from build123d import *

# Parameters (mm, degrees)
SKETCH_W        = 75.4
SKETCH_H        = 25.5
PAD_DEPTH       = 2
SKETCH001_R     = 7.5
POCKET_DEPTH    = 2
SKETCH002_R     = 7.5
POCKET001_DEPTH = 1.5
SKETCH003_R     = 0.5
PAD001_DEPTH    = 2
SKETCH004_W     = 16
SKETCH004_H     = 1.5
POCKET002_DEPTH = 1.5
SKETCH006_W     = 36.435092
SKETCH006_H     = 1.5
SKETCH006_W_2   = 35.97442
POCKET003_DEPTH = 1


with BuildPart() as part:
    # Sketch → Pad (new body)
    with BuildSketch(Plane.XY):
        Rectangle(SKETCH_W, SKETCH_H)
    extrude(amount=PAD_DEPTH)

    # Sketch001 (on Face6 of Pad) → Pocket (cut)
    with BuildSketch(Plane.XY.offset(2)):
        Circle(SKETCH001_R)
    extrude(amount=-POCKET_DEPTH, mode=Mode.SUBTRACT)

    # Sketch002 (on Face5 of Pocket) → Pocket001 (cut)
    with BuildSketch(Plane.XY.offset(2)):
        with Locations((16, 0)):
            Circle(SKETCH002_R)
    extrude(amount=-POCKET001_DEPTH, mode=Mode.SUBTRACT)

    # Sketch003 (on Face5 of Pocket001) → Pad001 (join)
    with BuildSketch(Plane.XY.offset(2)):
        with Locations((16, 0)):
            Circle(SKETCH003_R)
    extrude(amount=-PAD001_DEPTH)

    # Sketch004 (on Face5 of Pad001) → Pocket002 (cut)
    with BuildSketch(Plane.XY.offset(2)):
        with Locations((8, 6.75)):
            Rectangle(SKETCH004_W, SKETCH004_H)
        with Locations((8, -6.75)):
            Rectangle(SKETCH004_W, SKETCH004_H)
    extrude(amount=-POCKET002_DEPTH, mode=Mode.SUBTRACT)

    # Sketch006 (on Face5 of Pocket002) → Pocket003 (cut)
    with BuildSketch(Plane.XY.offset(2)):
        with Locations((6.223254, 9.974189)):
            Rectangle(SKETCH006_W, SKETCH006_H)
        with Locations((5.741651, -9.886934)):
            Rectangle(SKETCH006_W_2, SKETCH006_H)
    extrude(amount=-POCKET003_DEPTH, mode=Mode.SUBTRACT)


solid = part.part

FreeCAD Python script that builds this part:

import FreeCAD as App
import Part
import Sketcher

doc = App.newDocument("Part")
body = doc.addObject("PartDesign::Body", "Body")

# Sketch on XY plane
sketch1 = doc.addObject("Sketcher::SketchObject", "Sketch")
body.addObject(sketch1)
sketch1.AttachmentSupport = (doc.XY_Plane, [""])
sketch1.MapMode = "FlatFace"
sketch1.addGeometry([
    Part.LineSegment(App.Vector(-37.7, 12.75, 0), App.Vector(-37.7, -12.75, 0)),
    Part.LineSegment(App.Vector(-37.7, -12.75, 0), App.Vector(37.7, -12.75, 0)),
    Part.LineSegment(App.Vector(37.7, -12.75, 0), App.Vector(37.7, 12.75, 0)),
    Part.LineSegment(App.Vector(37.7, 12.75, 0), App.Vector(-37.7, 12.75, 0)),
], False)
sketch1.addConstraint([
    Sketcher.Constraint("Coincident", 0, 2, 1, 1),
    Sketcher.Constraint("Coincident", 1, 2, 2, 1),
    Sketcher.Constraint("Coincident", 2, 2, 3, 1),
    Sketcher.Constraint("Coincident", 3, 2, 0, 1),
    Sketcher.Constraint("Vertical", 0),
    Sketcher.Constraint("Horizontal", 1),
    Sketcher.Constraint("Vertical", 2),
    Sketcher.Constraint("Horizontal", 3),
    Sketcher.Constraint("Symmetric", 0, 2, 2, 2, -1, 1),
    Sketcher.Constraint("DistanceX", 1, 1, 1, 2, 75.4),
    Sketcher.Constraint("DistanceY", 0, 2, 0, 1, 25.5),
])
pad1 = doc.addObject("PartDesign::Pad", "Pad")
body.addObject(pad1)
pad1.Profile = sketch1
pad1.Length = 2

# Sketch on XY plane
sketch2 = doc.addObject("Sketcher::SketchObject", "Sketch001")
body.addObject(sketch2)
sketch2.AttachmentSupport = (doc.XY_Plane, [""])
sketch2.MapMode = "FlatFace"
sketch2.AttachmentOffset = App.Placement(App.Vector(0, 0, 2), App.Rotation())
sketch2.addGeometry(Part.Circle(App.Vector(0, 0, 0), App.Vector(0, 0, 1), 7.5), False)
sketch2.addConstraint([
    Sketcher.Constraint("Coincident", 0, 3, -1, 1),
    Sketcher.Constraint("Diameter", 0, 15.0),
])
pocket1 = doc.addObject("PartDesign::Pocket", "Pocket")
body.addObject(pocket1)
pocket1.Profile = sketch2
pocket1.Length = 2

# Sketch on XY plane
sketch3 = doc.addObject("Sketcher::SketchObject", "Sketch002")
body.addObject(sketch3)
sketch3.AttachmentSupport = (doc.XY_Plane, [""])
sketch3.MapMode = "FlatFace"
sketch3.AttachmentOffset = App.Placement(App.Vector(0, 0, 2), App.Rotation())
sketch3.addGeometry(Part.Circle(App.Vector(16, 0, 0), App.Vector(0, 0, 1), 7.5), False)
sketch3.addConstraint([
    Sketcher.Constraint("PointOnObject", 0, 3, -1),
    Sketcher.Constraint("Diameter", 0, 15.0),
    Sketcher.Constraint("DistanceX", -1, 1, 0, 3, 16.0),
])
pocket2 = doc.addObject("PartDesign::Pocket", "Pocket001")
body.addObject(pocket2)
pocket2.Profile = sketch3
pocket2.Length = 1.5

# Sketch on XY plane
sketch4 = doc.addObject("Sketcher::SketchObject", "Sketch003")
body.addObject(sketch4)
sketch4.AttachmentSupport = (doc.XY_Plane, [""])
sketch4.MapMode = "FlatFace"
sketch4.AttachmentOffset = App.Placement(App.Vector(0, 0, 2), App.Rotation())
sketch4.addGeometry(Part.Circle(App.Vector(16, 0, 0), App.Vector(0, 0, 1), 0.5), False)
sketch4.addConstraint([
    Sketcher.Constraint("PointOnObject", 0, 3, -1),
    Sketcher.Constraint("Diameter", 0, 1.0),
    Sketcher.Constraint("DistanceX", -1, 1, 0, 3, 16.0),
])
pad2 = doc.addObject("PartDesign::Pad", "Pad001")
body.addObject(pad2)
pad2.Profile = sketch4
pad2.Length = 2
pad2.Reversed = True

# Sketch on XY plane
sketch5 = doc.addObject("Sketcher::SketchObject", "Sketch004")
body.addObject(sketch5)
sketch5.AttachmentSupport = (doc.XY_Plane, [""])
sketch5.MapMode = "FlatFace"
sketch5.AttachmentOffset = App.Placement(App.Vector(0, 0, 2), App.Rotation())
sketch5.addGeometry([
    Part.LineSegment(App.Vector(0, 7.5, 0), App.Vector(0, 6, 0)),  # 0
    Part.LineSegment(App.Vector(0, 6, 0), App.Vector(16, 6, 0)),  # 1
    Part.LineSegment(App.Vector(16, 6, 0), App.Vector(16, 7.5, 0)),  # 2
    Part.LineSegment(App.Vector(16, 7.5, 0), App.Vector(0, 7.5, 0)),  # 3
    Part.LineSegment(App.Vector(0, -6, 0), App.Vector(0, -7.5, 0)),  # 4
    Part.LineSegment(App.Vector(0, -7.5, 0), App.Vector(16, -7.5, 0)),  # 5
    Part.LineSegment(App.Vector(16, -7.5, 0), App.Vector(16, -6, 0)),  # 6
    Part.LineSegment(App.Vector(16, -6, 0), App.Vector(0, -6, 0)),  # 7
], False)
sketch5.addConstraint([
    Sketcher.Constraint("Coincident", 0, 2, 1, 1),
    Sketcher.Constraint("Coincident", 1, 2, 2, 1),
    Sketcher.Constraint("Coincident", 2, 2, 3, 1),
    Sketcher.Constraint("Coincident", 3, 2, 0, 1),
    Sketcher.Constraint("Coincident", 4, 2, 5, 1),
    Sketcher.Constraint("Coincident", 5, 2, 6, 1),
    Sketcher.Constraint("Coincident", 6, 2, 7, 1),
    Sketcher.Constraint("Coincident", 7, 2, 4, 1),
    Sketcher.Constraint("Vertical", 0),
    Sketcher.Constraint("Horizontal", 1),
    Sketcher.Constraint("Vertical", 2),
    Sketcher.Constraint("Horizontal", 3),
    Sketcher.Constraint("Vertical", 4),
    Sketcher.Constraint("Horizontal", 5),
    Sketcher.Constraint("Vertical", 6),
    Sketcher.Constraint("Horizontal", 7),
    Sketcher.Constraint("Symmetric", 3, 2, 4, 2, -1, 1),
    Sketcher.Constraint("Symmetric", 1, 2, 6, 2, -1),
    Sketcher.Constraint("PointOnObject", 0, 2, -2),
    Sketcher.Constraint("DistanceX", 1, 1, 1, 2, 16.0),
    Sketcher.Constraint("DistanceY", 0, 2, 0, 1, 1.5),
    Sketcher.Constraint("DistanceY", -1, 1, 0, 2, 6.0),
])
pocket3 = doc.addObject("PartDesign::Pocket", "Pocket002")
body.addObject(pocket3)
pocket3.Profile = sketch5
pocket3.Length = 1.5

# Sketch on XY plane
sketch6 = doc.addObject("Sketcher::SketchObject", "Sketch005")
body.addObject(sketch6)
sketch6.AttachmentSupport = (doc.XY_Plane, [""])
sketch6.MapMode = "FlatFace"
sketch6.AttachmentOffset = App.Placement(App.Vector(0, 0, 2), App.Rotation())
sketch6.addGeometry([
    Part.LineSegment(App.Vector(-11.994292, 10.724189, 0), App.Vector(-11.994292, 9.224189, 0)),  # 0
    Part.LineSegment(App.Vector(-11.994292, 9.224189, 0), App.Vector(24.4408, 9.224189, 0)),  # 1
    Part.LineSegment(App.Vector(24.4408, 9.224189, 0), App.Vector(24.4408, 10.724189, 0)),  # 2
    Part.LineSegment(App.Vector(24.4408, 10.724189, 0), App.Vector(-11.994292, 10.724189, 0)),  # 3
    Part.LineSegment(App.Vector(-12.245559, -9.136934, 0), App.Vector(-12.245559, -10.636934, 0)),  # 4
    Part.LineSegment(App.Vector(-12.245559, -10.636934, 0), App.Vector(23.728861, -10.636934, 0)),  # 5
    Part.LineSegment(App.Vector(23.728861, -10.636934, 0), App.Vector(23.728861, -9.136934, 0)),  # 6
    Part.LineSegment(App.Vector(23.728861, -9.136934, 0), App.Vector(-12.245559, -9.136934, 0)),  # 7
], False)
sketch6.addConstraint([
    Sketcher.Constraint("Coincident", 0, 2, 1, 1),
    Sketcher.Constraint("Coincident", 1, 2, 2, 1),
    Sketcher.Constraint("Coincident", 2, 2, 3, 1),
    Sketcher.Constraint("Coincident", 3, 2, 0, 1),
    Sketcher.Constraint("Coincident", 4, 2, 5, 1),
    Sketcher.Constraint("Coincident", 5, 2, 6, 1),
    Sketcher.Constraint("Coincident", 6, 2, 7, 1),
    Sketcher.Constraint("Coincident", 7, 2, 4, 1),
    Sketcher.Constraint("Vertical", 0),
    Sketcher.Constraint("Horizontal", 1),
    Sketcher.Constraint("Vertical", 2),
    Sketcher.Constraint("Horizontal", 3),
    Sketcher.Constraint("Vertical", 4),
    Sketcher.Constraint("Horizontal", 5),
    Sketcher.Constraint("Vertical", 6),
    Sketcher.Constraint("Horizontal", 7),
    Sketcher.Constraint("Equal", 2, 4),
    Sketcher.Constraint("DistanceY", 0, 2, 0, 1, 1.5),
    Sketcher.Constraint("DistanceX", 1, 1, 1, 2, 36.435092),
    Sketcher.Constraint("DistanceX", 5, 1, 5, 2, 35.97442),
    Sketcher.Constraint("DistanceX", -1, 1, 1, 2, 24.4408),
    Sketcher.Constraint("DistanceY", -1, 1, 0, 2, 9.224189),
    Sketcher.Constraint("DistanceX", 4, 2, -1, 1, 12.245559),
    Sketcher.Constraint("DistanceY", 4, 2, -1, 1, 10.636934),
])
pocket4 = doc.addObject("PartDesign::Pocket", "Pocket003")
body.addObject(pocket4)
pocket4.Profile = sketch6
pocket4.Length = 1

doc.recompute()
